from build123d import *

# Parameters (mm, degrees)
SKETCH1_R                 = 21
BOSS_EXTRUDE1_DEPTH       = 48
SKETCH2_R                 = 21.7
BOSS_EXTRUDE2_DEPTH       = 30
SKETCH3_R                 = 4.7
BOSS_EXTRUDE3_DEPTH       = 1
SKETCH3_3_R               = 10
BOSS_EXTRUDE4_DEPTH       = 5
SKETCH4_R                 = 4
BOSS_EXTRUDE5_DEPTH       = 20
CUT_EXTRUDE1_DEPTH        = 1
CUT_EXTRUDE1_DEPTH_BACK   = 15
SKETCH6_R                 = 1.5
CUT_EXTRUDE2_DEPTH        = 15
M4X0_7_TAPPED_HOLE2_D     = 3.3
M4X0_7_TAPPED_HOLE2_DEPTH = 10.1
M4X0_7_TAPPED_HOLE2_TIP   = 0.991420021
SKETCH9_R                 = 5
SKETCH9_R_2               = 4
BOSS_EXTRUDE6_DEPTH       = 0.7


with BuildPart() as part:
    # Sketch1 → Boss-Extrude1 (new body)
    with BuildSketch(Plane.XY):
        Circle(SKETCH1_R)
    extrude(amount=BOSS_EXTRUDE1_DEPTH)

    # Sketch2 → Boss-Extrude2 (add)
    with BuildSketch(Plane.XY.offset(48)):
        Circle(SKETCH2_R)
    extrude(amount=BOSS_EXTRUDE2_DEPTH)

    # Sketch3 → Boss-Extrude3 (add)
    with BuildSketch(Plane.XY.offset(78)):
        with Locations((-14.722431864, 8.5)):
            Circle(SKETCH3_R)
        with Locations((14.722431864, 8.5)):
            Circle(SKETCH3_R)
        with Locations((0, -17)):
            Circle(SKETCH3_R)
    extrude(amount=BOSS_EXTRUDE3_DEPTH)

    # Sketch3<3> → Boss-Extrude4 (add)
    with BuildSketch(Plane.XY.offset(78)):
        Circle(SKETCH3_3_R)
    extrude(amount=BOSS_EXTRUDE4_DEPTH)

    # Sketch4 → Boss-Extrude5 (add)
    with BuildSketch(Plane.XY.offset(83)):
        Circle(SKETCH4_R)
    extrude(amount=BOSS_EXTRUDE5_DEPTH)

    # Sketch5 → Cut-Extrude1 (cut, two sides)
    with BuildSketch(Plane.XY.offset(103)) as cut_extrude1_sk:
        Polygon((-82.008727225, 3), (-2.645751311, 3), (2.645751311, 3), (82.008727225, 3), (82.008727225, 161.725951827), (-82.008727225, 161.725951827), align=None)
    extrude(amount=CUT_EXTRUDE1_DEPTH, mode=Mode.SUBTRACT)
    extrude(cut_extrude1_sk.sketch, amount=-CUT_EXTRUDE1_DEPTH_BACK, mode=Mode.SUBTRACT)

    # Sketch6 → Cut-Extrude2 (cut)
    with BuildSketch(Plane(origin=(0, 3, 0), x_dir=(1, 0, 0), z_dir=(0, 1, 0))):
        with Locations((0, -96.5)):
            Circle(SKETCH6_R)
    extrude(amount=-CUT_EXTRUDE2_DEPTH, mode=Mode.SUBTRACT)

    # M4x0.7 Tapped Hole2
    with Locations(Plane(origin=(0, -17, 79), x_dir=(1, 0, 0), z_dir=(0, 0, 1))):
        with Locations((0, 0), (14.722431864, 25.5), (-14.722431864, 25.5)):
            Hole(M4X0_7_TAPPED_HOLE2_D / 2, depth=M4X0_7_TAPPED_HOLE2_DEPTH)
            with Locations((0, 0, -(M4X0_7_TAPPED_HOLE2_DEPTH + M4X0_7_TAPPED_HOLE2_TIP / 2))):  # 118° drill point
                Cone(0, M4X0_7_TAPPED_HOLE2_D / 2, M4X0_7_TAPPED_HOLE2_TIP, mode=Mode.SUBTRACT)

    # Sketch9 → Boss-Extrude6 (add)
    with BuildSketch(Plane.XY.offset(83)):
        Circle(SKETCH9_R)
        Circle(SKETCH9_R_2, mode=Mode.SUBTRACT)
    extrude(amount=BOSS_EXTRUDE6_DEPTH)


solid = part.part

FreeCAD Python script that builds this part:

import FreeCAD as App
import Part
import Sketcher

V = App.Vector
Q = App.Units.Quantity


def add_polygon(sketch, points):
    """Adds a closed chain of lines whose ends are joined by coincident constraints."""
    first, n = sketch.GeometryCount, len(points)
    for a, b in zip(points, points[1:] + points[:1]):
        sketch.addGeometry(Part.LineSegment(App.Vector(*a, 0), App.Vector(*b, 0)), False)
    for i in range(n):
        sketch.addConstraint(Sketcher.Constraint("Coincident", first + i, 2, first + (i + 1) % n, 1))

doc = App.newDocument("Part")
body = doc.addObject("PartDesign::Body", "Body")

# Sketch on XY plane
sketch1 = body.newObject("Sketcher::SketchObject", "Sketch")
sketch1.AttachmentSupport = (doc.getObject("XY_Plane"), [""])
sketch1.MapMode = "FlatFace"
sketch1.addGeometry(Part.Circle(V(0, 0, 0), V(0, 0, 1), 21), False)
sketch1.addConstraint([
    Sketcher.Constraint("Coincident", 0, 3, -1, 1),
    Sketcher.Constraint("Diameter", 0, Q("42 mm")),
])
pad1 = body.newObject("PartDesign::Pad", "Pad")
pad1.Profile = sketch1
pad1.Length = 48

# Sketch on XY plane
sketch2 = body.newObject("Sketcher::SketchObject", "Sketch001")
sketch2.AttachmentSupport = (doc.getObject("XY_Plane"), [""])
sketch2.MapMode = "FlatFace"
sketch2.AttachmentOffset = App.Placement(V(0, 0, 48), App.Rotation())
sketch2.addGeometry(Part.Circle(V(0, 0, 0), V(0, 0, 1), 22), False)
sketch2.addConstraint([
    Sketcher.Constraint("Coincident", 0, 3, -1, 1),
    Sketcher.Constraint("Diameter", 0, Q("43.4 mm")),
])
pad2 = body.newObject("PartDesign::Pad", "Pad001")
pad2.Profile = sketch2
pad2.Length = 30

# Sketch on XY plane
sketch3 = body.newObject("Sketcher::SketchObject", "Sketch002")
sketch3.AttachmentSupport = (doc.getObject("XY_Plane"), [""])
sketch3.MapMode = "FlatFace"
sketch3.AttachmentOffset = App.Placement(V(0, 0, 78), App.Rotation())
sketch3.addGeometry([
    Part.Circle(V(-14.7, 8.5, 0), V(0, 0, 1), 4.7),
    Part.Circle(V(14.7, 8.5, 0), V(0, 0, 1), 4.7),
    Part.Circle(V(0, -17, 0), V(0, 0, 1), 4.7),
], False)
sketch3.addConstraint([
    Sketcher.Constraint("Equal", 0, 1),
    Sketcher.Constraint("Equal", 1, 2),
    Sketcher.Constraint("Symmetric", 0, 3, 1, 3, -2),
    Sketcher.Constraint("PointOnObject", 2, 3, -2),
    Sketcher.Constraint("Diameter", 0, Q("9.4 mm")),
    Sketcher.Constraint("DistanceY", 2, 3, -1, 1, Q("17 mm")),
    Sketcher.Constraint("DistanceY", -1, 1, 0, 3, Q("8.5 mm")),
    Sketcher.Constraint("DistanceX", 0, 3, -1, 1, Q("14.722432 mm")),
])
pad3 = body.newObject("PartDesign::Pad", "Pad002")
pad3.Profile = sketch3
pad3.Length = 1

# Sketch on XY plane
sketch4 = body.newObject("Sketcher::SketchObject", "Sketch003")
sketch4.AttachmentSupport = (doc.getObject("XY_Plane"), [""])
sketch4.MapMode = "FlatFace"
sketch4.AttachmentOffset = App.Placement(V(0, 0, 78), App.Rotation())
sketch4.addGeometry(Part.Circle(V(0, 0, 0), V(0, 0, 1), 10), False)
sketch4.addConstraint([
    Sketcher.Constraint("Coincident", 0, 3, -1, 1),
    Sketcher.Constraint("Diameter", 0, Q("20 mm")),
])
pad4 = body.newObject("PartDesign::Pad", "Pad003")
pad4.Profile = sketch4
pad4.Length = 5

# Sketch on XY plane
sketch5 = body.newObject("Sketcher::SketchObject", "Sketch004")
sketch5.AttachmentSupport = (doc.getObject("XY_Plane"), [""])
sketch5.MapMode = "FlatFace"
sketch5.AttachmentOffset = App.Placement(V(0, 0, 83), App.Rotation())
sketch5.addGeometry(Part.Circle(V(0, 0, 0), V(0, 0, 1), 4), False)
sketch5.addConstraint([
    Sketcher.Constraint("Coincident", 0, 3, -1, 1),
    Sketcher.Constraint("Diameter", 0, Q("8 mm")),
])
pad5 = body.newObject("PartDesign::Pad", "Pad004")
pad5.Profile = sketch5
pad5.Length = 20

# Sketch on XY plane
sketch6 = body.newObject("Sketcher::SketchObject", "Sketch005")
sketch6.AttachmentSupport = (doc.getObject("XY_Plane"), [""])
sketch6.MapMode = "FlatFace"
sketch6.AttachmentOffset = App.Placement(V(0, 0, 103), App.Rotation())
add_polygon(sketch6, [(-82, 3), (82, 3), (82, 162), (-82, 162)])  # lines 0-3
sketch6.addConstraint([
    Sketcher.Constraint("Horizontal", 0),
    Sketcher.Constraint("Vertical", 1),
    Sketcher.Constraint("Horizontal", 2),
    Sketcher.Constraint("Vertical", 3),
    Sketcher.Constraint("DistanceY", -1, 1, 0, 2, Q("3 mm")),
    Sketcher.Constraint("DistanceY", 1, 1, 1, 2, Q("158.725952 mm")),
    Sketcher.Constraint("DistanceX", 0, 1, 0, 2, Q("164.017454 mm")),
    Sketcher.Constraint("DistanceX", -1, 1, 0, 2, Q("82.008727 mm")),
])
pocket1 = body.newObject("PartDesign::Pocket", "Pocket")
pocket1.Profile = sketch6
pocket1.Type = "TwoLengths"
pocket1.Length = 1
pocket1.Length2 = 15
pocket1.Reversed = True

# Sketch on XZ plane
sketch7 = body.newObject("Sketcher::SketchObject", "Sketch006")
sketch7.AttachmentSupport = (doc.getObject("XZ_Plane"), [""])
sketch7.MapMode = "FlatFace"
sketch7.AttachmentOffset = App.Placement(V(0, 0, -3), App.Rotation())
sketch7.addGeometry(Part.Circle(V(0, 96.5, 0), V(0, 0, 1), 1.5), False)
sketch7.addConstraint([
    Sketcher.Constraint("PointOnObject", 0, 3, -2),
    Sketcher.Constraint("Diameter", 0, Q("3 mm")),
    Sketcher.Constraint("DistanceY", -1, 1, 0, 3, Q("96.5 mm")),
])
pocket2 = body.newObject("PartDesign::Pocket", "Pocket001")
pocket2.Profile = sketch7
pocket2.Length = 15
pocket2.Reversed = True

# Sketch on XY plane
sketch8 = body.newObject("Sketcher::SketchObject", "Sketch007")
sketch8.AttachmentSupport = (doc.getObject("XY_Plane"), [""])
sketch8.MapMode = "FlatFace"
sketch8.AttachmentOffset = App.Placement(V(0, 0, 79), App.Rotation())
sketch8.addGeometry([
    Part.Circle(V(0, -17, 0), V(0, 0, 1), 1.6),
    Part.Circle(V(14.7, 8.5, 0), V(0, 0, 1), 1.6),
    Part.Circle(V(-14.7, 8.5, 0), V(0, 0, 1), 1.6),
], False)
sketch8.addConstraint([
    Sketcher.Constraint("Equal", 0, 1),
    Sketcher.Constraint("Equal", 1, 2),
    Sketcher.Constraint("Symmetric", 1, 3, 2, 3, -2),
    Sketcher.Constraint("PointOnObject", 0, 3, -2),
    Sketcher.Constraint("Diameter", 0, Q("3.3 mm")),
    Sketcher.Constraint("DistanceY", 0, 3, -1, 1, Q("17 mm")),
    Sketcher.Constraint("DistanceY", -1, 1, 1, 3, Q("8.5 mm")),
    Sketcher.Constraint("DistanceX", -1, 1, 1, 3, Q("14.722432 mm")),
])
doc.recompute()
hole = body.newObject("PartDesign::Hole", "Hole")
hole.Profile = sketch8
hole.ThreadType = "None"
hole.Diameter = 3.3
hole.DepthType = "Dimension"
hole.Depth = 10.1
hole.DrillPoint = "Angled"
hole.DrillPointAngle = 118

# Sketch on XY plane
sketch9 = body.newObject("Sketcher::SketchObject", "Sketch008")
sketch9.AttachmentSupport = (doc.getObject("XY_Plane"), [""])
sketch9.MapMode = "FlatFace"
sketch9.AttachmentOffset = App.Placement(V(0, 0, 83), App.Rotation())
sketch9.addGeometry([
    Part.Circle(V(0, 0, 0), V(0, 0, 1), 5),
    Part.Circle(V(0, 0, 0), V(0, 0, 1), 4),
], False)
sketch9.addConstraint([
    Sketcher.Constraint("Coincident", 0, 3, -1, 1),
    Sketcher.Constraint("Coincident", 1, 3, -1, 1),
    Sketcher.Constraint("Diameter", 0, Q("10 mm")),
    Sketcher.Constraint("Diameter", 1, Q("8 mm")),
])
pad6 = body.newObject("PartDesign::Pad", "Pad005")
pad6.Profile = sketch9
pad6.Length = 0.7

doc.recompute()
